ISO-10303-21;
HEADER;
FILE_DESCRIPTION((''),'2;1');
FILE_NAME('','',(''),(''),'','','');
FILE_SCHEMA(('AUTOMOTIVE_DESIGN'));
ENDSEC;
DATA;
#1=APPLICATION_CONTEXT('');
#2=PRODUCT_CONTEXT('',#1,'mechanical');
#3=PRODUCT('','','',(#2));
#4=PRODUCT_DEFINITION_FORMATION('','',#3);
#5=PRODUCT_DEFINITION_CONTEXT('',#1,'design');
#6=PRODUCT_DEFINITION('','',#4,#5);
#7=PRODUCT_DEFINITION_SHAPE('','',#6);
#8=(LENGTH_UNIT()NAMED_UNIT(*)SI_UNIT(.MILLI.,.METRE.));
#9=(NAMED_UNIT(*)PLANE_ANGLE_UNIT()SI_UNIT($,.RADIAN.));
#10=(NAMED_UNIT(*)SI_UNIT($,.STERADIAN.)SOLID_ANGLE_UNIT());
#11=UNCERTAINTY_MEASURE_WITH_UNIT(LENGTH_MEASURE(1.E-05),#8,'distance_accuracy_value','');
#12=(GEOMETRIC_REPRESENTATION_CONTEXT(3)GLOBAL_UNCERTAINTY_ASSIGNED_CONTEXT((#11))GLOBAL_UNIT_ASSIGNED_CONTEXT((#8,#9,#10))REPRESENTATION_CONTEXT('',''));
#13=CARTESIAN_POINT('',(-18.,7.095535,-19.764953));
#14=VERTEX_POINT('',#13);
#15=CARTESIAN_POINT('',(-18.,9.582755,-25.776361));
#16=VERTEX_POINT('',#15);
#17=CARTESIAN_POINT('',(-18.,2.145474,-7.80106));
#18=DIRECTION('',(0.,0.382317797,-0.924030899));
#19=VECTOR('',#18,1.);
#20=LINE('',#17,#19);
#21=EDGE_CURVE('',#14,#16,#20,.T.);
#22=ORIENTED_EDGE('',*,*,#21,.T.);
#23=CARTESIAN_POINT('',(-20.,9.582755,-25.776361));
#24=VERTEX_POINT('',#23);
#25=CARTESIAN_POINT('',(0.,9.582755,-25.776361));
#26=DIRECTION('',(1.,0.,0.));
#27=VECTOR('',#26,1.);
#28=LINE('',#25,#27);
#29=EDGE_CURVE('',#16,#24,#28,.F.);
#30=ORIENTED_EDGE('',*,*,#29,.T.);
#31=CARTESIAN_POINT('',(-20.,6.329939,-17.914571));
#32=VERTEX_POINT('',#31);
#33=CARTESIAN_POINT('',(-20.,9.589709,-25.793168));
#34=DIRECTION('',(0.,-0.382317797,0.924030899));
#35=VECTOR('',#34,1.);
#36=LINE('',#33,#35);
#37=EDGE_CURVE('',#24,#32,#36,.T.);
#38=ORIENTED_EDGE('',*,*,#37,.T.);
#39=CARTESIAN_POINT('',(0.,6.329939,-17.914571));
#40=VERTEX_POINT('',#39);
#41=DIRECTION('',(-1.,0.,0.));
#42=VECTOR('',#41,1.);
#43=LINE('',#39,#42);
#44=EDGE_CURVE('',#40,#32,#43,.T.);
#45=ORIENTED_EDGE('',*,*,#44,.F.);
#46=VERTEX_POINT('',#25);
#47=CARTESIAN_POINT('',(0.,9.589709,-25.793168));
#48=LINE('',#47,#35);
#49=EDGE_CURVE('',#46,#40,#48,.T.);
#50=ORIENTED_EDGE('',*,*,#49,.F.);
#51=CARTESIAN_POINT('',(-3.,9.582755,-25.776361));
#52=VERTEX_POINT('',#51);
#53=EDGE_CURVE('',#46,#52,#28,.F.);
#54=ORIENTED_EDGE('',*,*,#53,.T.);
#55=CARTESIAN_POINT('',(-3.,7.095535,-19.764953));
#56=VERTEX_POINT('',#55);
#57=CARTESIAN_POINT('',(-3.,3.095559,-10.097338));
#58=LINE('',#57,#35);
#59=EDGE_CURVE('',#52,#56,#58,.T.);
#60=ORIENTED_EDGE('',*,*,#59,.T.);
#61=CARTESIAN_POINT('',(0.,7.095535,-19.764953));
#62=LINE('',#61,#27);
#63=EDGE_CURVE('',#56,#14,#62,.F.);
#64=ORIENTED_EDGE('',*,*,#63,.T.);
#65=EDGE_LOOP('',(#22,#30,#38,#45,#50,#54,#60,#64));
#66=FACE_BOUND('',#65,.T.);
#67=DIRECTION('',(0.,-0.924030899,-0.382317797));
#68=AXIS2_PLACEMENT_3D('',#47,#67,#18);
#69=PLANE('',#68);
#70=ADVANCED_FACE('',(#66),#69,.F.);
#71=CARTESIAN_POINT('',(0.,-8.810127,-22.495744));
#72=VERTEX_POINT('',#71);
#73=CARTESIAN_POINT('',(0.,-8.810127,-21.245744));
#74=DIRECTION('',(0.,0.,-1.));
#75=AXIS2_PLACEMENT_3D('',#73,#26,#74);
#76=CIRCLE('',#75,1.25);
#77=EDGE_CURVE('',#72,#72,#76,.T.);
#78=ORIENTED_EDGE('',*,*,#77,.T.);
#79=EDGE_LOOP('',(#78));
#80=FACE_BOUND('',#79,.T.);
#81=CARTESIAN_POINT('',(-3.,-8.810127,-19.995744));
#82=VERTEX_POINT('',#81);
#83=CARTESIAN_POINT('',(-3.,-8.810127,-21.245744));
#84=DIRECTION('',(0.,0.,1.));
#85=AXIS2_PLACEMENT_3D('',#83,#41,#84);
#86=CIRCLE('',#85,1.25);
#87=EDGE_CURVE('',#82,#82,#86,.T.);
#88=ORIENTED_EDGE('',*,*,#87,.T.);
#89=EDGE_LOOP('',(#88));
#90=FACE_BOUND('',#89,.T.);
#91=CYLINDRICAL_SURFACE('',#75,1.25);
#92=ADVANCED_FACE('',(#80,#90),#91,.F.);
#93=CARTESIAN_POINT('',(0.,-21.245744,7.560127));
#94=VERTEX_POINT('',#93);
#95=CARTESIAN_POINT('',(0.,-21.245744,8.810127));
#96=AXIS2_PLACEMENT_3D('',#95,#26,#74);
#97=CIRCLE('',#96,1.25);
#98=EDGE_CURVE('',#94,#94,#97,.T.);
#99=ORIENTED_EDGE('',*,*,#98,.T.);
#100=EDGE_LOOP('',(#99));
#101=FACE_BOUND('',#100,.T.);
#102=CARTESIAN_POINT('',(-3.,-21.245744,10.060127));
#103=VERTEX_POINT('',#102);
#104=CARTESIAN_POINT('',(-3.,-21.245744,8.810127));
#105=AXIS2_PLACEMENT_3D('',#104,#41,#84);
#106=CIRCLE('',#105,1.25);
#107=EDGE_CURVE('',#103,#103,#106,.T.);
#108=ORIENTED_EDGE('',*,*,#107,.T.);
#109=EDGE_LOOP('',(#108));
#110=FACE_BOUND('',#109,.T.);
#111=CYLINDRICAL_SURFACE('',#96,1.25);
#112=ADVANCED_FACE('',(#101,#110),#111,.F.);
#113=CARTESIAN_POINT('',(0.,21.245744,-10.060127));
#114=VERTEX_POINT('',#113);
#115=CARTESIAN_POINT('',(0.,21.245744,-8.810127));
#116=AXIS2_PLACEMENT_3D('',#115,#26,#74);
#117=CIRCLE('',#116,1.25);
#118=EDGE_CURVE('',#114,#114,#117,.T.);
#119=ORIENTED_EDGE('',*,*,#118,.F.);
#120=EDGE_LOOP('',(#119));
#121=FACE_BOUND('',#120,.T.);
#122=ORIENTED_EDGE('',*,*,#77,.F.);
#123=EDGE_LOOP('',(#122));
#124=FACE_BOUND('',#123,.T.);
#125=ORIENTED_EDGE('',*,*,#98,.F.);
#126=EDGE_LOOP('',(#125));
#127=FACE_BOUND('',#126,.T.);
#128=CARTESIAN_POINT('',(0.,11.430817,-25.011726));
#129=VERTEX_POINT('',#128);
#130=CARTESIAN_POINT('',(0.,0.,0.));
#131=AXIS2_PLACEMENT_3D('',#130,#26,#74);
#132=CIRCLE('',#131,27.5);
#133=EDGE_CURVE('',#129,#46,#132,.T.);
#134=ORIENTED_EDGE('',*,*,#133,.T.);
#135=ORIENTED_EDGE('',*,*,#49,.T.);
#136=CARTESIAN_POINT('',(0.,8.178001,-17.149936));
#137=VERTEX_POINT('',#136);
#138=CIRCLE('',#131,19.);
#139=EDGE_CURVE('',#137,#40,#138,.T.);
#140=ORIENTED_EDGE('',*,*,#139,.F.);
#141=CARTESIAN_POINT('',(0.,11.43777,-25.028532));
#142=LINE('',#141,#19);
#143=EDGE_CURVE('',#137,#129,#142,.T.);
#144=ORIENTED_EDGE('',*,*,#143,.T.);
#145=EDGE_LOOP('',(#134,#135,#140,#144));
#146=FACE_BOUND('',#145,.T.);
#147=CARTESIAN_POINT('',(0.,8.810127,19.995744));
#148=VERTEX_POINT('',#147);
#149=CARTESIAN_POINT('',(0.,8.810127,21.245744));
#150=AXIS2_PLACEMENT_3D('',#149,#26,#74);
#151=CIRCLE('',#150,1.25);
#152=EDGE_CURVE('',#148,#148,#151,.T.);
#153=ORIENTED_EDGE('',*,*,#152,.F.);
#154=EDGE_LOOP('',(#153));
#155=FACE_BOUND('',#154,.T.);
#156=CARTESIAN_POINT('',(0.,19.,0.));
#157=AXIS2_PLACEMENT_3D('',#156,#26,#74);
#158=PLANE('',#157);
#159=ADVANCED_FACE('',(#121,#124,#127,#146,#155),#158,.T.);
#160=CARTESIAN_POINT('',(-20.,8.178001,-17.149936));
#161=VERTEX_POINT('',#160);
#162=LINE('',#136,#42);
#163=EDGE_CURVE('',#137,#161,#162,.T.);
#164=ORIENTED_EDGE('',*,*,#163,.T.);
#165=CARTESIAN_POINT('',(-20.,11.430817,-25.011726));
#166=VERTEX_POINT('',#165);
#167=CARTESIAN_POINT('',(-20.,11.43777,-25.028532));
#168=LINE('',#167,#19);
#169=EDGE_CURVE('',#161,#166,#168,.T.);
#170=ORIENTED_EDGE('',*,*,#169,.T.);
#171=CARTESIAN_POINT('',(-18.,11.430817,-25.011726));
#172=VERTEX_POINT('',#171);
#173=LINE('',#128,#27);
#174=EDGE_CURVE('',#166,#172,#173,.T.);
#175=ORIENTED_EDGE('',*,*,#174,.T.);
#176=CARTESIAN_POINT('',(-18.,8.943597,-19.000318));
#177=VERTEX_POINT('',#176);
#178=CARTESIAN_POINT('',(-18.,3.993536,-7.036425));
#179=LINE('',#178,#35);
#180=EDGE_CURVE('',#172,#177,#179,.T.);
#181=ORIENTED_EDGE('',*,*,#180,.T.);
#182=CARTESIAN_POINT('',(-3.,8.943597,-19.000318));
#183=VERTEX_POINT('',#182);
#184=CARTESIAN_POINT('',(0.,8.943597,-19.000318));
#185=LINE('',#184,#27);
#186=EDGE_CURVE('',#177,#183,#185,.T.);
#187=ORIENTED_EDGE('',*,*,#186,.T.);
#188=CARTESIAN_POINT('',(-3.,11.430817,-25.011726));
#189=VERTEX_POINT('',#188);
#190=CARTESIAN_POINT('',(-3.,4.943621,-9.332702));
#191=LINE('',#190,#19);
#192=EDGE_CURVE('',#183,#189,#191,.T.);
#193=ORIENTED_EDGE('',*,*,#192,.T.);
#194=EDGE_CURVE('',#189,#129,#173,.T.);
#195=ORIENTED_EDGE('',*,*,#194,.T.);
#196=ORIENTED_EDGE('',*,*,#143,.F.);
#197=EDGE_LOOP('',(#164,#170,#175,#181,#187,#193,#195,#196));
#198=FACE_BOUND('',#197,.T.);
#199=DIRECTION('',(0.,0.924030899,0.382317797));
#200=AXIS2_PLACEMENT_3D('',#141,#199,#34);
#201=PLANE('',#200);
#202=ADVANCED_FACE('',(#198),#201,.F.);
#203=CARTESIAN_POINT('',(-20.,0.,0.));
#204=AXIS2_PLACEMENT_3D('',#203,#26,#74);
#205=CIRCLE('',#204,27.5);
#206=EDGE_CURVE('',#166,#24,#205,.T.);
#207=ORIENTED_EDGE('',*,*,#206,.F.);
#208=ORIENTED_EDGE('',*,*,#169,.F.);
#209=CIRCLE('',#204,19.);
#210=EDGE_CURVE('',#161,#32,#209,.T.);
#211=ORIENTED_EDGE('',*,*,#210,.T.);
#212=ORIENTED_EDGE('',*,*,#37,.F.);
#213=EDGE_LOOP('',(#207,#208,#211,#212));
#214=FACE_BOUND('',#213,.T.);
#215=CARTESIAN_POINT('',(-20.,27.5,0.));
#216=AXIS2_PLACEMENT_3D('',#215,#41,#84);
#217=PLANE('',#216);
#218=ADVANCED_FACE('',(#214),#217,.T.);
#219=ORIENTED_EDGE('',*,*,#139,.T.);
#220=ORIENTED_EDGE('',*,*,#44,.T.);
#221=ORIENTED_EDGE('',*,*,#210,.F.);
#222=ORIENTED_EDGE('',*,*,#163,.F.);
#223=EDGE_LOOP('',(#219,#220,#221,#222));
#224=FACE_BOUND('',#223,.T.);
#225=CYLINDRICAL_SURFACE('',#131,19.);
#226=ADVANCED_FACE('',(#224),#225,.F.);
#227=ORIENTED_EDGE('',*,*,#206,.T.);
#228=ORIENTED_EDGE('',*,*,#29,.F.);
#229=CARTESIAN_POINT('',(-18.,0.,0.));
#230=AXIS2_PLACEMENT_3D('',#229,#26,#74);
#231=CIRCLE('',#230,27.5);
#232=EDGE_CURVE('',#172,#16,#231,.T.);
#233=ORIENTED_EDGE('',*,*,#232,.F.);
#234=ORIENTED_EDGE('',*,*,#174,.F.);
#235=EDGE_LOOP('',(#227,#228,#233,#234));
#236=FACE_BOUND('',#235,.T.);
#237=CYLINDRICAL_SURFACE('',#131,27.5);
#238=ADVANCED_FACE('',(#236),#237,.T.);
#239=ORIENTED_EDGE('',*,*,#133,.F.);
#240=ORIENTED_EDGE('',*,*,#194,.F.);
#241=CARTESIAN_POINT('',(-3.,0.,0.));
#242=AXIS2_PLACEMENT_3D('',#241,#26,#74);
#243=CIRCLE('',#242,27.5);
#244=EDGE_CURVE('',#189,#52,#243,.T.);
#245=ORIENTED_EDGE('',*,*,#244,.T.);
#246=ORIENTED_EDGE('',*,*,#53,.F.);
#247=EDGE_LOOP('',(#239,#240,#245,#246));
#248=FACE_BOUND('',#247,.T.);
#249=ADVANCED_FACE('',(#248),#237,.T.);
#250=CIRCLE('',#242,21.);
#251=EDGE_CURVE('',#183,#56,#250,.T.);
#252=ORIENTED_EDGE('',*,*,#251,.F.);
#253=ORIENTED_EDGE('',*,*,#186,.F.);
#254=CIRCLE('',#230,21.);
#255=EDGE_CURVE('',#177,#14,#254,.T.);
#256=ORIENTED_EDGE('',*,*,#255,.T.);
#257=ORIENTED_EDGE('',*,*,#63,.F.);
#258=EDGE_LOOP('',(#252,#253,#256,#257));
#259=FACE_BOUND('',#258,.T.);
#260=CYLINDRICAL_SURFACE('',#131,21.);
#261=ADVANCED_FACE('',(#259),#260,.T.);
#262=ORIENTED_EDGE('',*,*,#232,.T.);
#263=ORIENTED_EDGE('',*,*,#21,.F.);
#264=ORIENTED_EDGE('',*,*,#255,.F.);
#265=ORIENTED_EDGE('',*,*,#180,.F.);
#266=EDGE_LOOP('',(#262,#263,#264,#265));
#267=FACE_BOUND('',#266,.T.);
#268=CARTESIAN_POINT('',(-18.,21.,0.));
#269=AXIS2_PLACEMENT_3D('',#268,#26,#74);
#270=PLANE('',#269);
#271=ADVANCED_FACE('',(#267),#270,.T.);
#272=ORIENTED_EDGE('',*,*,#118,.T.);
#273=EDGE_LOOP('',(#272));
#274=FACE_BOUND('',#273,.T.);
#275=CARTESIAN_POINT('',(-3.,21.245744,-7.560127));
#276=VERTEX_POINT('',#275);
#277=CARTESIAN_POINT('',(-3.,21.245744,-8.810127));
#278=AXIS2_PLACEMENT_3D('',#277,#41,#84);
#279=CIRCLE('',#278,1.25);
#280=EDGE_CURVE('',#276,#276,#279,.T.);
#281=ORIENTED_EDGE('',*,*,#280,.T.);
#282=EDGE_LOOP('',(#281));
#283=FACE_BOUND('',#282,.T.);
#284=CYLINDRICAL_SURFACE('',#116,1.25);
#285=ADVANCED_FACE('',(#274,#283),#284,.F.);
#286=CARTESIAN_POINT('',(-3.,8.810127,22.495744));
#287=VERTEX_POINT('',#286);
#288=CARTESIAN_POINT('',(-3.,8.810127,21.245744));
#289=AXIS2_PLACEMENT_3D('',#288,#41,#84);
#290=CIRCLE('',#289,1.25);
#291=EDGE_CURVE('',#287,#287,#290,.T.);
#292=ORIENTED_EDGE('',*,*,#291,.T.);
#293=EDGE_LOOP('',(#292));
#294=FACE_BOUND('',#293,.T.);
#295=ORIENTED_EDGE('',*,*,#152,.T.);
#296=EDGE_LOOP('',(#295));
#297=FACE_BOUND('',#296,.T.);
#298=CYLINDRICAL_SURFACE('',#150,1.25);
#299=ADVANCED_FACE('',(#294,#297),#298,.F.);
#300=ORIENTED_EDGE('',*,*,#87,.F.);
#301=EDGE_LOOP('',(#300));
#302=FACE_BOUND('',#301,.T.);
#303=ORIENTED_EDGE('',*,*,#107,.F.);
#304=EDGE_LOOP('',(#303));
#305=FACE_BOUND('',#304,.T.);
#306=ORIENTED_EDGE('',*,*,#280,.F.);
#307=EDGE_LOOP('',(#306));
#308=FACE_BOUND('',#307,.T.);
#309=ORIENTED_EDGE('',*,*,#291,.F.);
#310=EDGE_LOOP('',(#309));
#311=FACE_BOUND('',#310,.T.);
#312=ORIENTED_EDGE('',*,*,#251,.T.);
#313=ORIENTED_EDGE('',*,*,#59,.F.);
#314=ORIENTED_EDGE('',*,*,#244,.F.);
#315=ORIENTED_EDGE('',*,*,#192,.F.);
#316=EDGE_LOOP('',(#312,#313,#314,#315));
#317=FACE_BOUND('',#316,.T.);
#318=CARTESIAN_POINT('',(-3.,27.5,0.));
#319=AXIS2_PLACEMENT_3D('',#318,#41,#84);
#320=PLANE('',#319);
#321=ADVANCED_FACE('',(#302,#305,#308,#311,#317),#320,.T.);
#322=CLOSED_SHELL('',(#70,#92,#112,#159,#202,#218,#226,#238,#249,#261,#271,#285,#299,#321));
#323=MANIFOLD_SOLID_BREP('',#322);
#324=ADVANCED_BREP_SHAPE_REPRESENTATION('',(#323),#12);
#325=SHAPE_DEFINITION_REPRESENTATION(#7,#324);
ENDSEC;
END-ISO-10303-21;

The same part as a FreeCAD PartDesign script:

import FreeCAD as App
import Part
import Sketcher
from FreeCAD import Vector

doc = App.newDocument("Part")
params = doc.addObject("Spreadsheet::Sheet", "Params")
for row, (alias, value) in enumerate([
    ("sketch1_width", "20 mm"),
    ("sketch1_width2", "3 mm"),
    ("sketch1_width3", "15 mm"),
    ("sketch1_height", "8.5 mm"),
    ("sketch1_height2", "6.5 mm"),
    ("revolution_angle", "360 deg"),
    ("sketch2_diameter", "2.5 mm"),
    ("hole_diameter", "2.5 mm"),
    ("hole_depth", "7.5 mm"),
    ("sketch3_length", "2 mm"),
], start=1):
    params.set(f"A{row}", alias)
    params.set(f"B{row}", "=" + value)
    params.setAlias(f"B{row}", alias)

body = doc.addObject("PartDesign::Body", "Body")

sketch1 = doc.addObject("Sketcher::SketchObject", "Sketch")
body.addObject(sketch1)
sketch1.AttachmentSupport = (doc.XY_Plane, [""])
sketch1.MapMode = "FlatFace"
sketch1.addGeometry([
    Part.LineSegment(Vector(-20, 19, 0), Vector(0, 19, 0)),
    Part.LineSegment(Vector(0, 19, 0), Vector(0, 27.5, 0)),
    Part.LineSegment(Vector(0, 27.5, 0), Vector(-3, 27.5, 0)),
    Part.LineSegment(Vector(-3, 27.5, 0), Vector(-3, 21, 0)),
    Part.LineSegment(Vector(-3, 21, 0), Vector(-18, 21, 0)),
    Part.LineSegment(Vector(-18, 21, 0), Vector(-18, 27.5, 0)),
    Part.LineSegment(Vector(-18, 27.5, 0), Vector(-20, 27.5, 0)),
    Part.LineSegment(Vector(-20, 27.5, 0), Vector(-20, 19, 0)),
], False)
sketch1.addConstraint([
    Sketcher.Constraint("Coincident", 0, 2, 1, 1),
    Sketcher.Constraint("Coincident", 1, 2, 2, 1),
    Sketcher.Constraint("Coincident", 2, 2, 3, 1),
    Sketcher.Constraint("Coincident", 3, 2, 4, 1),
    Sketcher.Constraint("Coincident", 4, 2, 5, 1),
    Sketcher.Constraint("Coincident", 5, 2, 6, 1),
    Sketcher.Constraint("Coincident", 6, 2, 7, 1),
    Sketcher.Constraint("Coincident", 7, 2, 0, 1),
    Sketcher.Constraint("Horizontal", 0),
    Sketcher.Constraint("Vertical", 1),
    Sketcher.Constraint("Horizontal", 2),
    Sketcher.Constraint("Vertical", 3),
    Sketcher.Constraint("Horizontal", 4),
    Sketcher.Constraint("Vertical", 5),
    Sketcher.Constraint("Horizontal", 6),
    Sketcher.Constraint("Vertical", 7),
    Sketcher.Constraint("PointOnObject", 0, 2, -2),
    Sketcher.Constraint("Horizontal", 2, 2, 5, 2),
    Sketcher.Constraint("DistanceX", 0, 1, 0, 2, 20.0),
    Sketcher.Constraint("DistanceX", 2, 2, 2, 1, 3.0),
    Sketcher.Constraint("DistanceX", 4, 2, 4, 1, 15.0),
    Sketcher.Constraint("DistanceY", 1, 1, 1, 2, 8.5),
    Sketcher.Constraint("DistanceY", 3, 2, 3, 1, 6.5),
    Sketcher.Constraint("DistanceY", -1, 1, 0, 2, 19.0),
])
sketch1.setExpression("Constraints[18]", "Params.sketch1_width")
sketch1.setExpression("Constraints[19]", "Params.sketch1_width2")
sketch1.setExpression("Constraints[20]", "Params.sketch1_width3")
sketch1.setExpression("Constraints[21]", "Params.sketch1_height")
sketch1.setExpression("Constraints[22]", "Params.sketch1_height2")
revolution = doc.addObject("PartDesign::Revolution", "Revolution")
body.addObject(revolution)
revolution.Profile = sketch1
revolution.ReferenceAxis = (sketch1, ["H_Axis"])
revolution.setExpression("Angle", "Params.revolution_angle")

sketch2 = doc.addObject("Sketcher::SketchObject", "Sketch001")
body.addObject(sketch2)
sketch2.AttachmentSupport = (doc.YZ_Plane, [""])
sketch2.MapMode = "FlatFace"
sketch2.addGeometry([
    Part.Circle(Vector(-21.245744, 8.810127, 0), Vector(0, 0, 1), 1.25),
    Part.Circle(Vector(-8.810127, -21.245744, 0), Vector(0, 0, 1), 1.25),
    Part.Circle(Vector(21.245744, -8.810127, 0), Vector(0, 0, 1), 1.25),
    Part.Circle(Vector(8.810127, 21.245744, 0), Vector(0, 0, 1), 1.25),
], False)
sketch2.addConstraint([
    Sketcher.Constraint("Equal", 0, 1),
    Sketcher.Constraint("Equal", 1, 2),
    Sketcher.Constraint("Equal", 2, 3),
    Sketcher.Constraint("Symmetric", 0, 3, 2, 3, -1, 1),
    Sketcher.Constraint("Symmetric", 1, 3, 3, 3, -1, 1),
    Sketcher.Constraint("Diameter", 0, 2.5),
    Sketcher.Constraint("DistanceY", 1, 3, 0, 3, 30.055872),
    Sketcher.Constraint("DistanceX", 1, 3, 2, 3, 30.055872),
    Sketcher.Constraint("DistanceX", 0, 3, 2, 3, 42.491489),
    Sketcher.Constraint("DistanceY", 1, 3, 3, 3, 42.491489),
])
sketch2.setExpression("Constraints[5]", "Params.sketch2_diameter")
doc.recompute()
hole = doc.addObject("PartDesign::Hole", "Hole")
body.addObject(hole)
hole.Profile = sketch2
hole.ThreadType = "None"
hole.setExpression("Diameter", "Params.hole_diameter")
hole.DepthType = "Dimension"
hole.setExpression("Depth", "Params.hole_depth")
hole.DrillPoint = "Angled"
hole.DrillPointAngle = 118

sketch3 = doc.addObject("Sketcher::SketchObject", "Sketch002")
body.addObject(sketch3)
sketch3.AttachmentSupport = (doc.YZ_Plane, [""])
sketch3.MapMode = "FlatFace"
sketch3.AttachmentOffset = App.Placement(Vector(0, 0, -20), App.Rotation())
sketch3.addGeometry([
    Part.LineSegment(Vector(11.43777, -25.028532, 0), Vector(9.589709, -25.793168, 0)),
    Part.LineSegment(Vector(9.589709, -25.793168, 0), Vector(6.329939, -17.914571, 0)),
    Part.LineSegment(Vector(6.329939, -17.914571, 0), Vector(8.178001, -17.149936, 0)),
    Part.LineSegment(Vector(8.178001, -17.149936, 0), Vector(11.43777, -25.028532, 0)),
], False)
sketch3.addConstraint([
    Sketcher.Constraint("Coincident", 0, 2, 1, 1),
    Sketcher.Constraint("Coincident", 1, 2, 2, 1),
    Sketcher.Constraint("Coincident", 2, 2, 3, 1),
    Sketcher.Constraint("Coincident", 3, 2, 0, 1),
    Sketcher.Constraint("Perpendicular", 0, 1),
    Sketcher.Constraint("Perpendicular", 1, 2),
    Sketcher.Constraint("Perpendicular", 2, 3),
    Sketcher.Constraint("Distance", 0, 2.0),
    Sketcher.Constraint("DistanceX", -1, 1, 2, 2, 8.178001),
    Sketcher.Constraint("DistanceX", -1, 1, 0, 2, 9.589709),
    Sketcher.Constraint("DistanceX", -1, 1, 1, 2, 6.329939),
    Sketcher.Constraint("DistanceY", 1, 2, -1, 1, 17.914571),
])
sketch3.setExpression("Constraints[7]", "Params.sketch3_length")
pocket1 = doc.addObject("PartDesign::Pocket", "Pocket")
body.addObject(pocket1)
pocket1.Profile = sketch3
pocket1.Type = "ThroughAll"
pocket1.Reversed = True

doc.recompute()
